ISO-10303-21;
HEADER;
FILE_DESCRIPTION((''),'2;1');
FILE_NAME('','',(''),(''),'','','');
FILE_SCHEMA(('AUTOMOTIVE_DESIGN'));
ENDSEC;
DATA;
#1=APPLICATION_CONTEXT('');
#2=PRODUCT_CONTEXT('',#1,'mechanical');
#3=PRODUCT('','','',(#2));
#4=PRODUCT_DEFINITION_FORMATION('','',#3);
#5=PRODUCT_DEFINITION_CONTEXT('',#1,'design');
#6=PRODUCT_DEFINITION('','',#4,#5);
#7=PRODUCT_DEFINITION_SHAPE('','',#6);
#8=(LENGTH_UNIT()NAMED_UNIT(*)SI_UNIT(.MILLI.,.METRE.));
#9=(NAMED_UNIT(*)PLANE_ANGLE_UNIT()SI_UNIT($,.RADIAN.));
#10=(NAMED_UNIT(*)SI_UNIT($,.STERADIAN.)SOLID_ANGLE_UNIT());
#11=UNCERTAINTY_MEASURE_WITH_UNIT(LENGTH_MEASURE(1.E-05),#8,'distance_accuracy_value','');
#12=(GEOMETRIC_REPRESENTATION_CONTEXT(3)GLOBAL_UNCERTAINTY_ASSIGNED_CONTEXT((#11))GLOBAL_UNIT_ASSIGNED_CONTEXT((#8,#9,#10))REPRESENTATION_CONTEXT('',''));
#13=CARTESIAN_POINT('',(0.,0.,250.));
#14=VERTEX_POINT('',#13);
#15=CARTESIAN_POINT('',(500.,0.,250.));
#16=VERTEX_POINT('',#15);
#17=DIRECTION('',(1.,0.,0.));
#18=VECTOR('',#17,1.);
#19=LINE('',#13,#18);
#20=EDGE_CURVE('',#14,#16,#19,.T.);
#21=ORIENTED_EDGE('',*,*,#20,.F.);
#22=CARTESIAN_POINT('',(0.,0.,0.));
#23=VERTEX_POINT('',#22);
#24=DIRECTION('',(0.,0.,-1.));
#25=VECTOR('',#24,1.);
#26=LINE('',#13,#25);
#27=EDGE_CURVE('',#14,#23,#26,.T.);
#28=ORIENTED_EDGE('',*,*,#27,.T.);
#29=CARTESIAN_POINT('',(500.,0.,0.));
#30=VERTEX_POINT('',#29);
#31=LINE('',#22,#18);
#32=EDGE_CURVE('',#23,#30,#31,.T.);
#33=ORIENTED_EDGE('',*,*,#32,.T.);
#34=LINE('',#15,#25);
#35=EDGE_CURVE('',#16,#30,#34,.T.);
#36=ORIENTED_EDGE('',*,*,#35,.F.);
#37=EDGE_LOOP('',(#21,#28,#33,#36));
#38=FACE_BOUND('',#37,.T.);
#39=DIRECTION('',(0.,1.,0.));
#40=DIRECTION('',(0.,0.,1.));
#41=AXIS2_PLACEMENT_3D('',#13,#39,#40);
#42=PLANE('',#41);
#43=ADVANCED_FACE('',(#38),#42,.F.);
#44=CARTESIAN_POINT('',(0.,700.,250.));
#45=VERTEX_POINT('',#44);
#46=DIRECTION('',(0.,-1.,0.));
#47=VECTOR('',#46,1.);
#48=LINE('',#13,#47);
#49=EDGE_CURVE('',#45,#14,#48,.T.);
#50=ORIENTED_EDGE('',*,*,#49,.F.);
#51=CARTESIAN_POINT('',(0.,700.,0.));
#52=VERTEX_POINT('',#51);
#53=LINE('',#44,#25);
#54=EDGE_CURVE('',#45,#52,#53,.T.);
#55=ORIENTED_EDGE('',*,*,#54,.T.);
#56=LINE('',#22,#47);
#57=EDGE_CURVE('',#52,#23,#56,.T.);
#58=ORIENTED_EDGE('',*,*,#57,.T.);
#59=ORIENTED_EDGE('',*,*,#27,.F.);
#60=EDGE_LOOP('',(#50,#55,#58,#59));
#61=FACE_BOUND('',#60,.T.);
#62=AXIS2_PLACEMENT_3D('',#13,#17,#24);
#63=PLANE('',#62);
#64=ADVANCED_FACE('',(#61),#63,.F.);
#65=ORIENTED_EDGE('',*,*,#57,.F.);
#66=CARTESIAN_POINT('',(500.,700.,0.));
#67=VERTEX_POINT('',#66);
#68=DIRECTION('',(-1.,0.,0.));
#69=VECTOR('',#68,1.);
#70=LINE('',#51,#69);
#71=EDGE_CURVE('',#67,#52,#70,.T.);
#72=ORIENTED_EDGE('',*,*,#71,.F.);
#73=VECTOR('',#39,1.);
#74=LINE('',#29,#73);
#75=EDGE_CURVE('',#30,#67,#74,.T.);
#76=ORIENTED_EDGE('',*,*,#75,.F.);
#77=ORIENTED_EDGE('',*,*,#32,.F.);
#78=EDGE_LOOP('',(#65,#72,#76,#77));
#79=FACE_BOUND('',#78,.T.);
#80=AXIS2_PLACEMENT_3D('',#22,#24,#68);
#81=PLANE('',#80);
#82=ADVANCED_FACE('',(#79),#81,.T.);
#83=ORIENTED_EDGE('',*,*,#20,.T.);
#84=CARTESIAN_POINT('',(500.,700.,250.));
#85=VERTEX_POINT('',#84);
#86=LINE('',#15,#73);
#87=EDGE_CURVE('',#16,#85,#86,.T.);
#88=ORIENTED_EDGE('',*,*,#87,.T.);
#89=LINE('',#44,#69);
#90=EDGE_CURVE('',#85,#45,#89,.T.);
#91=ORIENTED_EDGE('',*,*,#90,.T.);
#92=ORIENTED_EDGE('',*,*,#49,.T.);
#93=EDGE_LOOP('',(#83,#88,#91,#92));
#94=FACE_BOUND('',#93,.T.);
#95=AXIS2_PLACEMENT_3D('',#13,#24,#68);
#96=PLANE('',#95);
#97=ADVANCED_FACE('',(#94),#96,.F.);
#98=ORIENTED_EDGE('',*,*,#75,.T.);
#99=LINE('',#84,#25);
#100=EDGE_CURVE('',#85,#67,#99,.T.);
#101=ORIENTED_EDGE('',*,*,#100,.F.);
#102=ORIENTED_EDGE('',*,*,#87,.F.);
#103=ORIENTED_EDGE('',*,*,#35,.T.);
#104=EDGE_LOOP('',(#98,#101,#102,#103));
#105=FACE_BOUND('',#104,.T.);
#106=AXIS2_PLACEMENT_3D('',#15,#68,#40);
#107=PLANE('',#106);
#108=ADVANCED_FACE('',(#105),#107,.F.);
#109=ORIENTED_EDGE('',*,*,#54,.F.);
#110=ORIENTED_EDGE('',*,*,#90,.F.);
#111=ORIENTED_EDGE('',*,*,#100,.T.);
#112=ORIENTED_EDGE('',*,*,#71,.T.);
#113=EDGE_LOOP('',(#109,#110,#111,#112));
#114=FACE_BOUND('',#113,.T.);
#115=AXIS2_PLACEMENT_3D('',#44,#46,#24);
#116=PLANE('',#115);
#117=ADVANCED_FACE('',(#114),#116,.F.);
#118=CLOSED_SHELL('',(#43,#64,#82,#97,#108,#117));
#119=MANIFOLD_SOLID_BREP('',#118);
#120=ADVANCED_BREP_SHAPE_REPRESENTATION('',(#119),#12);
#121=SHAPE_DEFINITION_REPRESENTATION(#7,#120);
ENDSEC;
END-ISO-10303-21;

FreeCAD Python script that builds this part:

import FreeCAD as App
import Part
import Sketcher


def add_polygon(sketch, points):
    """Adds a closed chain of lines whose ends are joined by coincident constraints."""
    first, n = sketch.GeometryCount, len(points)
    for a, b in zip(points, points[1:] + points[:1]):
        sketch.addGeometry(Part.LineSegment(App.Vector(*a, 0), App.Vector(*b, 0)), False)
    for i in range(n):
        sketch.addConstraint(Sketcher.Constraint("Coincident", first + i, 2, first + (i + 1) % n, 1))

doc = App.newDocument("Part")
params = doc.addObject("Spreadsheet::Sheet", "Params")
for row, (alias, value) in enumerate([
    ("sketch1_width", "500 mm"),
    ("sketch1_height", "700 mm"),
    ("pad1_length", "250 mm"),
], start=1):
    params.set(f"A{row}", alias)
    params.set(f"B{row}", "=" + value)
    params.setAlias(f"B{row}", alias)

body = doc.addObject("PartDesign::Body", "Body")

# Sketch on XY plane
sketch1 = body.newObject("Sketcher::SketchObject", "Sketch")
sketch1.AttachmentSupport = (doc.getObject("XY_Plane"), [""])
sketch1.MapMode = "FlatFace"
add_polygon(sketch1, [(0, 700), (0, 0), (500, 0), (500, 700)])  # lines 0-3
sketch1.addConstraint(Sketcher.Constraint("Vertical", 0))
sketch1.addConstraint(Sketcher.Constraint("Horizontal", 1))
sketch1.addConstraint(Sketcher.Constraint("Vertical", 2))
sketch1.addConstraint(Sketcher.Constraint("Horizontal", 3))
sketch1.addConstraint(Sketcher.Constraint("Coincident", 0, 2, -1, 1))
sketch1.addConstraint(Sketcher.Constraint("DistanceX", 1, 1, 1, 2, 500.0))
sketch1.addConstraint(Sketcher.Constraint("DistanceY", 0, 2, 0, 1, 700.0))
sketch1.setExpression("Constraints[9]", "Params.sketch1_width")
sketch1.setExpression("Constraints[10]", "Params.sketch1_height")
pad1 = body.newObject("PartDesign::Pad", "Pad")
pad1.Profile = sketch1
pad1.setExpression("Length", "Params.pad1_length")

doc.recompute()
